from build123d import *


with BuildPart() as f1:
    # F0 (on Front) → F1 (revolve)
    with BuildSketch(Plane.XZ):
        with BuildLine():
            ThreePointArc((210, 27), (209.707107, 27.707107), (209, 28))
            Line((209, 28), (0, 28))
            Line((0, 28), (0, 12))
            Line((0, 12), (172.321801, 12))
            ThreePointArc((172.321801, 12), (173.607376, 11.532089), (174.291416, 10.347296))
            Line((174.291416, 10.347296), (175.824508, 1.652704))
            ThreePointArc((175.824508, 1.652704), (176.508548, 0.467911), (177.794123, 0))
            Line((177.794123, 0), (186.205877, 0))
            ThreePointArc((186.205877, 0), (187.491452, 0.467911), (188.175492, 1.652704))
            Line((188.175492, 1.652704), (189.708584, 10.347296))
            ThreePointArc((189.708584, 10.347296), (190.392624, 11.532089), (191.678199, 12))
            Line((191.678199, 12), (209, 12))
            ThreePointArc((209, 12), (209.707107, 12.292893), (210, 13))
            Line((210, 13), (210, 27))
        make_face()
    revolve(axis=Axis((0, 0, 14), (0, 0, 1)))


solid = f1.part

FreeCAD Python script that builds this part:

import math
import FreeCAD as App
import Part
import Sketcher
Q = App.Units.Quantity

doc = App.newDocument("Part")
body = doc.addObject("PartDesign::Body", "Body")

# Sketch on XZ plane
sketch1 = body.newObject("Sketcher::SketchObject", "Sketch")
sketch1.AttachmentSupport = (doc.getObject("XZ_Plane"), [""])
sketch1.MapMode = "FlatFace"
sketch1.addGeometry([
    Part.ArcOfCircle(Part.Circle(App.Vector(209, 27, 0), App.Vector(0, 0, 1), 1), math.radians(0), math.radians(90)),  # 0
    Part.LineSegment(App.Vector(209, 28, 0), App.Vector(0, 28, 0)),  # 1
    Part.LineSegment(App.Vector(0, 28, 0), App.Vector(0, 12, 0)),  # 2
    Part.LineSegment(App.Vector(0, 12, 0), App.Vector(172.3, 12, 0)),  # 3
    Part.ArcOfCircle(Part.Circle(App.Vector(172.3, 10, 0), App.Vector(0, 0, 1), 2), math.radians(10), math.radians(90)),  # 4
    Part.LineSegment(App.Vector(174.3, 10.3, 0), App.Vector(175.8, 1.7, 0)),  # 5
    Part.ArcOfCircle(Part.Circle(App.Vector(177.8, 2, 0), App.Vector(0, 0, 1), 2), math.radians(-170), math.radians(-90)),  # 6
    Part.LineSegment(App.Vector(177.8, 0, 0), App.Vector(186.2, 0, 0)),  # 7
    Part.ArcOfCircle(Part.Circle(App.Vector(186.2, 2, 0), App.Vector(0, 0, 1), 2), math.radians(-90), math.radians(-10)),  # 8
    Part.LineSegment(App.Vector(188.2, 1.7, 0), App.Vector(189.7, 10.3, 0)),  # 9
    Part.ArcOfCircle(Part.Circle(App.Vector(191.7, 10, 0), App.Vector(0, 0, 1), 2), math.radians(90), math.radians(170)),  # 10
    Part.LineSegment(App.Vector(191.7, 12, 0), App.Vector(209, 12, 0)),  # 11
    Part.ArcOfCircle(Part.Circle(App.Vector(209, 13, 0), App.Vector(0, 0, 1), 1), math.radians(-90), math.radians(0)),  # 12
    Part.LineSegment(App.Vector(210, 13, 0), App.Vector(210, 27, 0)),  # 13
], False)
sketch1.addConstraint([
    Sketcher.Constraint("Tangent", 0, 2, 1, 1),
    Sketcher.Constraint("Coincident", 1, 2, 2, 1),
    Sketcher.Constraint("Coincident", 2, 2, 3, 1),
    Sketcher.Constraint("Tangent", 3, 2, 4, 2),
    Sketcher.Constraint("Tangent", 4, 1, 5, 1),
    Sketcher.Constraint("Tangent", 5, 2, 6, 1),
    Sketcher.Constraint("Tangent", 6, 2, 7, 1),
    Sketcher.Constraint("Tangent", 7, 2, 8, 1),
    Sketcher.Constraint("Tangent", 8, 2, 9, 1),
    Sketcher.Constraint("Tangent", 9, 2, 10, 2),
    Sketcher.Constraint("Tangent", 10, 1, 11, 1),
    Sketcher.Constraint("Tangent", 11, 2, 12, 1),
    Sketcher.Constraint("Tangent", 12, 2, 13, 1),
    Sketcher.Constraint("Tangent", 13, 2, 0, 1),
    Sketcher.Constraint("Horizontal", 1),
    Sketcher.Constraint("Vertical", 2),
    Sketcher.Constraint("Horizontal", 3),
    Sketcher.Constraint("Horizontal", 7),
    Sketcher.Constraint("Horizontal", 11),
    Sketcher.Constraint("Vertical", 13),
    Sketcher.Constraint("Equal", 4, 6),
    Sketcher.Constraint("Equal", 6, 8),
    Sketcher.Constraint("Equal", 8, 10),
    Sketcher.Constraint("Equal", 0, 12),
    Sketcher.Constraint("PointOnObject", 1, 2, -2),
    Sketcher.Constraint("PointOnObject", 6, 2, -1),
    Sketcher.Constraint("Horizontal", 4, 3, 10, 3),
    Sketcher.Constraint("Horizontal", 5, 2, 8, 2),
    Sketcher.Constraint("Radius", 0, 0.999999),
    Sketcher.Constraint("Radius", 4, 1.999999),
    Sketcher.Constraint("DistanceX", 1, 2, 1, 1, 209.0),
    Sketcher.Constraint("DistanceY", 2, 2, 2, 1, 16.0),
    Sketcher.Constraint("Angle", 5, Q("-79.999995 deg")),
    Sketcher.Constraint("DistanceY", -1, 1, 0, 3, 27.000001),
    Sketcher.Constraint("DistanceX", 3, 1, 3, 2, 172.321801),
    Sketcher.Constraint("DistanceX", 11, 1, 11, 2, 17.321801),
])
revolution = body.newObject("PartDesign::Revolution", "Revolution")
revolution.Profile = sketch1
revolution.ReferenceAxis = (sketch1, ["V_Axis"])
revolution.Angle = 360

doc.recompute()
